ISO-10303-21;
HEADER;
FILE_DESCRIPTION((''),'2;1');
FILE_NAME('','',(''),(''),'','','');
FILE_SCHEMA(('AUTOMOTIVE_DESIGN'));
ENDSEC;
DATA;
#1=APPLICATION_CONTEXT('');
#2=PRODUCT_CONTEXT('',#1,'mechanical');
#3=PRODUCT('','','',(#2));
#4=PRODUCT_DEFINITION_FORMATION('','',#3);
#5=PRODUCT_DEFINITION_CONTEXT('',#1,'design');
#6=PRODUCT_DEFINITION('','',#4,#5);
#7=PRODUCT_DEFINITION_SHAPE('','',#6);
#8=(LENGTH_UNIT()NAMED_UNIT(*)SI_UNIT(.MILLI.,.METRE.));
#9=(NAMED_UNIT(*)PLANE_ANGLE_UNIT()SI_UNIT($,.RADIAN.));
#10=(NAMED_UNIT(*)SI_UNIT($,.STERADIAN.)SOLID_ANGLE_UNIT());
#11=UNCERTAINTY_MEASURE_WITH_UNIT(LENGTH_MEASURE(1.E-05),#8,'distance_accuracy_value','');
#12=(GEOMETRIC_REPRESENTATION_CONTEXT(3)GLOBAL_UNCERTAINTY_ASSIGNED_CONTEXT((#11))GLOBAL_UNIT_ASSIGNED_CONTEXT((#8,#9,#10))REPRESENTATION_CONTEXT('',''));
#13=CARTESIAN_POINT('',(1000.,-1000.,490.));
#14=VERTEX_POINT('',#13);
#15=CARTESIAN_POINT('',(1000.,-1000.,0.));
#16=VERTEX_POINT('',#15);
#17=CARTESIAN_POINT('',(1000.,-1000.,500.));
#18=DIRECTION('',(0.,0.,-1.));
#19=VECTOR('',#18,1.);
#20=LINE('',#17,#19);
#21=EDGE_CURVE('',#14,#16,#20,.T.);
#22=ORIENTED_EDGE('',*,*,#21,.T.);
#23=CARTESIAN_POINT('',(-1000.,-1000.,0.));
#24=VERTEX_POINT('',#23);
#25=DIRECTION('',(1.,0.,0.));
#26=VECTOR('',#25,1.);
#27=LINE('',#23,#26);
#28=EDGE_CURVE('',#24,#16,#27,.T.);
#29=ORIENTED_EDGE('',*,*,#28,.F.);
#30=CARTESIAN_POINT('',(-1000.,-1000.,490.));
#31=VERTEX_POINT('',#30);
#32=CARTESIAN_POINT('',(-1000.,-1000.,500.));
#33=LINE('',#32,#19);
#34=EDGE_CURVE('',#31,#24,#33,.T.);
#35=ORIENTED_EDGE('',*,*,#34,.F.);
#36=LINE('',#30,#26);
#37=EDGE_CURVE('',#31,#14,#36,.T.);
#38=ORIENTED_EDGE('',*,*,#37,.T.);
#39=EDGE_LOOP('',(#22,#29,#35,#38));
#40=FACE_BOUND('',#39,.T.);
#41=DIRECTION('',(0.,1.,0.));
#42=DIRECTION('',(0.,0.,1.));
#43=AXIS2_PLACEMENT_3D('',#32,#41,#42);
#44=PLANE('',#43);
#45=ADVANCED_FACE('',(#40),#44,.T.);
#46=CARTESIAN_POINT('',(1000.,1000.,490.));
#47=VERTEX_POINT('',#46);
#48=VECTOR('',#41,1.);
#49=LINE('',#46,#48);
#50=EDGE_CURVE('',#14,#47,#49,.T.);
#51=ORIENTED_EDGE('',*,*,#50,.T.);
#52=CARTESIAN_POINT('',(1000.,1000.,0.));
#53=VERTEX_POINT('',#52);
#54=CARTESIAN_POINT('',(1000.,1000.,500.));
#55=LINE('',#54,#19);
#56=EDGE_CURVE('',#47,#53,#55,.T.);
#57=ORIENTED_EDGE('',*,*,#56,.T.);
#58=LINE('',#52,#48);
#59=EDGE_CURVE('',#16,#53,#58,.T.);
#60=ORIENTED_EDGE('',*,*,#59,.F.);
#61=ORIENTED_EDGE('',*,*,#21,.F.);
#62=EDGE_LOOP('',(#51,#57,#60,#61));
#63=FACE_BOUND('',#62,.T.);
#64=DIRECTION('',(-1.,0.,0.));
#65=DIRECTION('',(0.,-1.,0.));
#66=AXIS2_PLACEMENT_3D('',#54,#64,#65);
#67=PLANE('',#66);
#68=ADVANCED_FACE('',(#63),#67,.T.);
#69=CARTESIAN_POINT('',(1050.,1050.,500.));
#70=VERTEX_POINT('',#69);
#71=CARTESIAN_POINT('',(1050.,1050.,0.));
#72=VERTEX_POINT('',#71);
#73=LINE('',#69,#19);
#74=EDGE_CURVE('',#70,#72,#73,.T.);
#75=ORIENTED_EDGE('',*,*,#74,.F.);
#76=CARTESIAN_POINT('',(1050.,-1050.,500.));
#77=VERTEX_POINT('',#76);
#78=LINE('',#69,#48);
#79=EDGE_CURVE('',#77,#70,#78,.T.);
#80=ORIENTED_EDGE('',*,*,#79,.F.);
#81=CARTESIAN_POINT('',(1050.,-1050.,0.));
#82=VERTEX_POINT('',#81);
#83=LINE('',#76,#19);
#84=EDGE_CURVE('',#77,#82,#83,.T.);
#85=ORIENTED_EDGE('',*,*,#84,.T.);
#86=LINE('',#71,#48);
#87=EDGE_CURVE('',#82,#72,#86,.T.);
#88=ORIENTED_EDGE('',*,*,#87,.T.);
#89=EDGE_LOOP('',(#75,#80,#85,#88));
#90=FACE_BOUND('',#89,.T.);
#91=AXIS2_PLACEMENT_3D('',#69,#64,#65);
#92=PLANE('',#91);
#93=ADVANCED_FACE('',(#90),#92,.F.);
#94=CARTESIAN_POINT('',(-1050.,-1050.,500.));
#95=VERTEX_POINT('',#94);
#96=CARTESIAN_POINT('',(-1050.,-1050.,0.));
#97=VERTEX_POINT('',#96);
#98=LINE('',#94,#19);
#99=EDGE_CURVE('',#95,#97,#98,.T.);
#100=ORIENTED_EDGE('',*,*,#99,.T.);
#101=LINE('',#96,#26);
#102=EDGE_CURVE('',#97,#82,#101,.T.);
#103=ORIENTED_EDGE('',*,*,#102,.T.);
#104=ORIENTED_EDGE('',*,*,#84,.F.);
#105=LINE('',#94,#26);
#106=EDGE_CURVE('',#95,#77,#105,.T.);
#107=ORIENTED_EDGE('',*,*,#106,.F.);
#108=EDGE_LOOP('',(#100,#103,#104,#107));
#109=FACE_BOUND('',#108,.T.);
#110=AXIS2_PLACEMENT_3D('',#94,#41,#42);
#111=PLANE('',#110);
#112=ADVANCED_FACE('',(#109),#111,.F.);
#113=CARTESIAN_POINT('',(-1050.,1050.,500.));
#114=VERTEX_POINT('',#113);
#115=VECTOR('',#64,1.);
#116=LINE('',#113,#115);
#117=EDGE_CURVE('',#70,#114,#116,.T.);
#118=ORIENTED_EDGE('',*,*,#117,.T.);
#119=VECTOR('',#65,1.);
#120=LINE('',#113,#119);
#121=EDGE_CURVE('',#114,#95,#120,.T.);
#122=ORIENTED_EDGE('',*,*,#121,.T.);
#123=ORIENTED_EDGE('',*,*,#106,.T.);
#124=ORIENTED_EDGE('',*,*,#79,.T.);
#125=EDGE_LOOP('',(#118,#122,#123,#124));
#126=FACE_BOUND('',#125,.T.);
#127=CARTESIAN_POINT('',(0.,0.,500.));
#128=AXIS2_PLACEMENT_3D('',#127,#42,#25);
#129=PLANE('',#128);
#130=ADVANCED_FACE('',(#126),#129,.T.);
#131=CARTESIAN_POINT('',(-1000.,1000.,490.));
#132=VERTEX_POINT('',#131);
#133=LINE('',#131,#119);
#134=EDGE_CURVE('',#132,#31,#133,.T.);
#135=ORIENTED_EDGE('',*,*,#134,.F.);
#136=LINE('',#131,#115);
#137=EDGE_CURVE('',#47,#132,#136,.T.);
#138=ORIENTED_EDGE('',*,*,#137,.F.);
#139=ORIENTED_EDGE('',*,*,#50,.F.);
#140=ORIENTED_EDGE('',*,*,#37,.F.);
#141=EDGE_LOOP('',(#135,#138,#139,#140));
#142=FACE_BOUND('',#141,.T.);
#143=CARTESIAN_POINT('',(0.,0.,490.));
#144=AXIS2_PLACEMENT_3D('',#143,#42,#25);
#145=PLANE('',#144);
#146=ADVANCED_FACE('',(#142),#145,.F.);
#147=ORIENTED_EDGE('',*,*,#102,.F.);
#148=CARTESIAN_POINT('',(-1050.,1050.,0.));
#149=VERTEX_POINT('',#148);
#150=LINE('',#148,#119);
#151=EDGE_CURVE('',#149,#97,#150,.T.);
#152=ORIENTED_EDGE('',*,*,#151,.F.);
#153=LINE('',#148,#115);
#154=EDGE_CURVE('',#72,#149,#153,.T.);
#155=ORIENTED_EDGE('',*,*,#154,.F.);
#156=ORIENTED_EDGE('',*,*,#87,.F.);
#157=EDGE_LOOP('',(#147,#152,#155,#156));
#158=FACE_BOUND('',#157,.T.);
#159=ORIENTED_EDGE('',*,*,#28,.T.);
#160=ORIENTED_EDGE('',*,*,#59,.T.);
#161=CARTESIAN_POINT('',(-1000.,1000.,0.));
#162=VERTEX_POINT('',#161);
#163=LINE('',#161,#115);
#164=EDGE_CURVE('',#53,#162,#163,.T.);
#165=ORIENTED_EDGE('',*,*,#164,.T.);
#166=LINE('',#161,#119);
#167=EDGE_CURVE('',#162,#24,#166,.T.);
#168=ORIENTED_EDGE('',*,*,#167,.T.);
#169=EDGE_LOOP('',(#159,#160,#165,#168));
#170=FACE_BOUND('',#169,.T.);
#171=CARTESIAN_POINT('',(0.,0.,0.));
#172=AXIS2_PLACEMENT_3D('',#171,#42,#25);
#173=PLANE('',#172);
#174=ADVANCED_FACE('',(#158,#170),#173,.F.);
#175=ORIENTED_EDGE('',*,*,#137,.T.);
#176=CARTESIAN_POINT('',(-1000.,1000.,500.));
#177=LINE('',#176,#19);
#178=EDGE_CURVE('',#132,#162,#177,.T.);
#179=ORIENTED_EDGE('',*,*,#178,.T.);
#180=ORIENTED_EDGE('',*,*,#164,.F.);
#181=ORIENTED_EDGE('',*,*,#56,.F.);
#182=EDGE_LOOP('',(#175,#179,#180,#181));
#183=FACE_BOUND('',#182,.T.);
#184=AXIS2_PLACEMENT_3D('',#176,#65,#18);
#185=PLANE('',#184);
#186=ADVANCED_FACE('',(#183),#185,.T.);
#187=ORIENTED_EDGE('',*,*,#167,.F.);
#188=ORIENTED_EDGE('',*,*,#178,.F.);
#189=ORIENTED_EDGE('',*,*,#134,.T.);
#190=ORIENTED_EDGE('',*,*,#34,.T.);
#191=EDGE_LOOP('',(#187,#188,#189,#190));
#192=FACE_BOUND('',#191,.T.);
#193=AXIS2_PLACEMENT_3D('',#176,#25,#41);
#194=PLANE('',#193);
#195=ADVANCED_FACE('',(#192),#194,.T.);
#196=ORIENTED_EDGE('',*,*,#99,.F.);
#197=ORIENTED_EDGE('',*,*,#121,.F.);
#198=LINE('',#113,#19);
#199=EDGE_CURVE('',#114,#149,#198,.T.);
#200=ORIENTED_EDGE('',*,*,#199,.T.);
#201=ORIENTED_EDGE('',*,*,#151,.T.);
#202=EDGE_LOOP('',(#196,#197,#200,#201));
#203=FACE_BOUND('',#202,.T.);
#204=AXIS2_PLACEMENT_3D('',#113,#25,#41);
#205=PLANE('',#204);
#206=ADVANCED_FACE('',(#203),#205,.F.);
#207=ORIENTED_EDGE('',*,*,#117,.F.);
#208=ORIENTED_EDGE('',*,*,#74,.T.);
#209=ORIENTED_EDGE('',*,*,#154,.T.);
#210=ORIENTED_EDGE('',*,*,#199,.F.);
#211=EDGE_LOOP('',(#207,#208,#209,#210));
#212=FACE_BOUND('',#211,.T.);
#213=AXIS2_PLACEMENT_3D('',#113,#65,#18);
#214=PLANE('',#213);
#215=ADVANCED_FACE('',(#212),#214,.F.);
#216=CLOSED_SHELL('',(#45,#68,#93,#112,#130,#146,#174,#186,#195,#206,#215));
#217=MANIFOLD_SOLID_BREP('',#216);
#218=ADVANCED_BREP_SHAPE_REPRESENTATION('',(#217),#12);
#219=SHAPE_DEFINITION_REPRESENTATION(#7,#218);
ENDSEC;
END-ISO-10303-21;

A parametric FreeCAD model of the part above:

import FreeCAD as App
import Part
import Sketcher

V = App.Vector

doc = App.newDocument("Part")
body = doc.addObject("PartDesign::Body", "Body")

# Sketch on XY plane
sketch1 = body.newObject("Sketcher::SketchObject", "Sketch")
sketch1.AttachmentSupport = (doc.getObject("XY_Plane"), [""])
sketch1.MapMode = "FlatFace"
sketch1.addGeometry([
    Part.LineSegment(V(-1050, 1050, 0), V(-1050, -1050, 0)),  # 0
    Part.LineSegment(V(-1050, -1050, 0), V(1050, -1050, 0)),  # 1
    Part.LineSegment(V(1050, -1050, 0), V(1050, 1050, 0)),  # 2
    Part.LineSegment(V(1050, 1050, 0), V(-1050, 1050, 0)),  # 3
    Part.LineSegment(V(1000, -1000, 0), V(-1000, -1000, 0)),  # 4
    Part.LineSegment(V(-1000, -1000, 0), V(-1000, 1000, 0)),  # 5
    Part.LineSegment(V(-1000, 1000, 0), V(1000, 1000, 0)),  # 6
    Part.LineSegment(V(1000, 1000, 0), V(1000, -1000, 0)),  # 7
], False)
sketch1.addConstraint([
    Sketcher.Constraint("Coincident", 0, 2, 1, 1),
    Sketcher.Constraint("Coincident", 1, 2, 2, 1),
    Sketcher.Constraint("Coincident", 2, 2, 3, 1),
    Sketcher.Constraint("Coincident", 3, 2, 0, 1),
    Sketcher.Constraint("Coincident", 4, 2, 5, 1),
    Sketcher.Constraint("Coincident", 5, 2, 6, 1),
    Sketcher.Constraint("Coincident", 6, 2, 7, 1),
    Sketcher.Constraint("Coincident", 7, 2, 4, 1),
    Sketcher.Constraint("Vertical", 0),
    Sketcher.Constraint("Horizontal", 1),
    Sketcher.Constraint("Vertical", 2),
    Sketcher.Constraint("Horizontal", 3),
    Sketcher.Constraint("Horizontal", 4),
    Sketcher.Constraint("Vertical", 5),
    Sketcher.Constraint("Horizontal", 6),
    Sketcher.Constraint("Vertical", 7),
    Sketcher.Constraint("Symmetric", 0, 2, 2, 2, -1, 1),
    Sketcher.Constraint("Symmetric", 4, 2, 6, 2, -1, 1),
    Sketcher.Constraint("Equal", 3, 0),
    Sketcher.Constraint("Equal", 6, 5),
    Sketcher.Constraint("DistanceX", 1, 1, 1, 2, 2100.0),
    Sketcher.Constraint("DistanceX", 4, 2, 4, 1, 2000.0),
])
pad1 = body.newObject("PartDesign::Pad", "Pad")
pad1.Profile = sketch1
pad1.Length = 500

# Sketch on XY plane
sketch2 = body.newObject("Sketcher::SketchObject", "Sketch001")
sketch2.AttachmentSupport = (doc.getObject("XY_Plane"), [""])
sketch2.MapMode = "FlatFace"
sketch2.AttachmentOffset = App.Placement(V(0, 0, 500), App.Rotation())
sketch2.addGeometry([
    Part.LineSegment(V(-1050, 1050, 0), V(-1050, -1050, 0)),
    Part.LineSegment(V(-1050, -1050, 0), V(1050, -1050, 0)),
    Part.LineSegment(V(1050, -1050, 0), V(1050, 1050, 0)),
    Part.LineSegment(V(1050, 1050, 0), V(-1050, 1050, 0)),
], False)
sketch2.addConstraint([
    Sketcher.Constraint("Coincident", 0, 2, 1, 1),
    Sketcher.Constraint("Coincident", 1, 2, 2, 1),
    Sketcher.Constraint("Coincident", 2, 2, 3, 1),
    Sketcher.Constraint("Coincident", 3, 2, 0, 1),
    Sketcher.Constraint("Vertical", 0),
    Sketcher.Constraint("Horizontal", 1),
    Sketcher.Constraint("Vertical", 2),
    Sketcher.Constraint("Horizontal", 3),
    Sketcher.Constraint("Symmetric", 0, 2, 2, 2, -1, 1),
    Sketcher.Constraint("Equal", 3, 0),
    Sketcher.Constraint("DistanceX", 1, 1, 1, 2, 2100.0),
])
pad2 = body.newObject("PartDesign::Pad", "Pad001")
pad2.Profile = sketch2
pad2.Length = 10
pad2.Reversed = True

doc.recompute()
